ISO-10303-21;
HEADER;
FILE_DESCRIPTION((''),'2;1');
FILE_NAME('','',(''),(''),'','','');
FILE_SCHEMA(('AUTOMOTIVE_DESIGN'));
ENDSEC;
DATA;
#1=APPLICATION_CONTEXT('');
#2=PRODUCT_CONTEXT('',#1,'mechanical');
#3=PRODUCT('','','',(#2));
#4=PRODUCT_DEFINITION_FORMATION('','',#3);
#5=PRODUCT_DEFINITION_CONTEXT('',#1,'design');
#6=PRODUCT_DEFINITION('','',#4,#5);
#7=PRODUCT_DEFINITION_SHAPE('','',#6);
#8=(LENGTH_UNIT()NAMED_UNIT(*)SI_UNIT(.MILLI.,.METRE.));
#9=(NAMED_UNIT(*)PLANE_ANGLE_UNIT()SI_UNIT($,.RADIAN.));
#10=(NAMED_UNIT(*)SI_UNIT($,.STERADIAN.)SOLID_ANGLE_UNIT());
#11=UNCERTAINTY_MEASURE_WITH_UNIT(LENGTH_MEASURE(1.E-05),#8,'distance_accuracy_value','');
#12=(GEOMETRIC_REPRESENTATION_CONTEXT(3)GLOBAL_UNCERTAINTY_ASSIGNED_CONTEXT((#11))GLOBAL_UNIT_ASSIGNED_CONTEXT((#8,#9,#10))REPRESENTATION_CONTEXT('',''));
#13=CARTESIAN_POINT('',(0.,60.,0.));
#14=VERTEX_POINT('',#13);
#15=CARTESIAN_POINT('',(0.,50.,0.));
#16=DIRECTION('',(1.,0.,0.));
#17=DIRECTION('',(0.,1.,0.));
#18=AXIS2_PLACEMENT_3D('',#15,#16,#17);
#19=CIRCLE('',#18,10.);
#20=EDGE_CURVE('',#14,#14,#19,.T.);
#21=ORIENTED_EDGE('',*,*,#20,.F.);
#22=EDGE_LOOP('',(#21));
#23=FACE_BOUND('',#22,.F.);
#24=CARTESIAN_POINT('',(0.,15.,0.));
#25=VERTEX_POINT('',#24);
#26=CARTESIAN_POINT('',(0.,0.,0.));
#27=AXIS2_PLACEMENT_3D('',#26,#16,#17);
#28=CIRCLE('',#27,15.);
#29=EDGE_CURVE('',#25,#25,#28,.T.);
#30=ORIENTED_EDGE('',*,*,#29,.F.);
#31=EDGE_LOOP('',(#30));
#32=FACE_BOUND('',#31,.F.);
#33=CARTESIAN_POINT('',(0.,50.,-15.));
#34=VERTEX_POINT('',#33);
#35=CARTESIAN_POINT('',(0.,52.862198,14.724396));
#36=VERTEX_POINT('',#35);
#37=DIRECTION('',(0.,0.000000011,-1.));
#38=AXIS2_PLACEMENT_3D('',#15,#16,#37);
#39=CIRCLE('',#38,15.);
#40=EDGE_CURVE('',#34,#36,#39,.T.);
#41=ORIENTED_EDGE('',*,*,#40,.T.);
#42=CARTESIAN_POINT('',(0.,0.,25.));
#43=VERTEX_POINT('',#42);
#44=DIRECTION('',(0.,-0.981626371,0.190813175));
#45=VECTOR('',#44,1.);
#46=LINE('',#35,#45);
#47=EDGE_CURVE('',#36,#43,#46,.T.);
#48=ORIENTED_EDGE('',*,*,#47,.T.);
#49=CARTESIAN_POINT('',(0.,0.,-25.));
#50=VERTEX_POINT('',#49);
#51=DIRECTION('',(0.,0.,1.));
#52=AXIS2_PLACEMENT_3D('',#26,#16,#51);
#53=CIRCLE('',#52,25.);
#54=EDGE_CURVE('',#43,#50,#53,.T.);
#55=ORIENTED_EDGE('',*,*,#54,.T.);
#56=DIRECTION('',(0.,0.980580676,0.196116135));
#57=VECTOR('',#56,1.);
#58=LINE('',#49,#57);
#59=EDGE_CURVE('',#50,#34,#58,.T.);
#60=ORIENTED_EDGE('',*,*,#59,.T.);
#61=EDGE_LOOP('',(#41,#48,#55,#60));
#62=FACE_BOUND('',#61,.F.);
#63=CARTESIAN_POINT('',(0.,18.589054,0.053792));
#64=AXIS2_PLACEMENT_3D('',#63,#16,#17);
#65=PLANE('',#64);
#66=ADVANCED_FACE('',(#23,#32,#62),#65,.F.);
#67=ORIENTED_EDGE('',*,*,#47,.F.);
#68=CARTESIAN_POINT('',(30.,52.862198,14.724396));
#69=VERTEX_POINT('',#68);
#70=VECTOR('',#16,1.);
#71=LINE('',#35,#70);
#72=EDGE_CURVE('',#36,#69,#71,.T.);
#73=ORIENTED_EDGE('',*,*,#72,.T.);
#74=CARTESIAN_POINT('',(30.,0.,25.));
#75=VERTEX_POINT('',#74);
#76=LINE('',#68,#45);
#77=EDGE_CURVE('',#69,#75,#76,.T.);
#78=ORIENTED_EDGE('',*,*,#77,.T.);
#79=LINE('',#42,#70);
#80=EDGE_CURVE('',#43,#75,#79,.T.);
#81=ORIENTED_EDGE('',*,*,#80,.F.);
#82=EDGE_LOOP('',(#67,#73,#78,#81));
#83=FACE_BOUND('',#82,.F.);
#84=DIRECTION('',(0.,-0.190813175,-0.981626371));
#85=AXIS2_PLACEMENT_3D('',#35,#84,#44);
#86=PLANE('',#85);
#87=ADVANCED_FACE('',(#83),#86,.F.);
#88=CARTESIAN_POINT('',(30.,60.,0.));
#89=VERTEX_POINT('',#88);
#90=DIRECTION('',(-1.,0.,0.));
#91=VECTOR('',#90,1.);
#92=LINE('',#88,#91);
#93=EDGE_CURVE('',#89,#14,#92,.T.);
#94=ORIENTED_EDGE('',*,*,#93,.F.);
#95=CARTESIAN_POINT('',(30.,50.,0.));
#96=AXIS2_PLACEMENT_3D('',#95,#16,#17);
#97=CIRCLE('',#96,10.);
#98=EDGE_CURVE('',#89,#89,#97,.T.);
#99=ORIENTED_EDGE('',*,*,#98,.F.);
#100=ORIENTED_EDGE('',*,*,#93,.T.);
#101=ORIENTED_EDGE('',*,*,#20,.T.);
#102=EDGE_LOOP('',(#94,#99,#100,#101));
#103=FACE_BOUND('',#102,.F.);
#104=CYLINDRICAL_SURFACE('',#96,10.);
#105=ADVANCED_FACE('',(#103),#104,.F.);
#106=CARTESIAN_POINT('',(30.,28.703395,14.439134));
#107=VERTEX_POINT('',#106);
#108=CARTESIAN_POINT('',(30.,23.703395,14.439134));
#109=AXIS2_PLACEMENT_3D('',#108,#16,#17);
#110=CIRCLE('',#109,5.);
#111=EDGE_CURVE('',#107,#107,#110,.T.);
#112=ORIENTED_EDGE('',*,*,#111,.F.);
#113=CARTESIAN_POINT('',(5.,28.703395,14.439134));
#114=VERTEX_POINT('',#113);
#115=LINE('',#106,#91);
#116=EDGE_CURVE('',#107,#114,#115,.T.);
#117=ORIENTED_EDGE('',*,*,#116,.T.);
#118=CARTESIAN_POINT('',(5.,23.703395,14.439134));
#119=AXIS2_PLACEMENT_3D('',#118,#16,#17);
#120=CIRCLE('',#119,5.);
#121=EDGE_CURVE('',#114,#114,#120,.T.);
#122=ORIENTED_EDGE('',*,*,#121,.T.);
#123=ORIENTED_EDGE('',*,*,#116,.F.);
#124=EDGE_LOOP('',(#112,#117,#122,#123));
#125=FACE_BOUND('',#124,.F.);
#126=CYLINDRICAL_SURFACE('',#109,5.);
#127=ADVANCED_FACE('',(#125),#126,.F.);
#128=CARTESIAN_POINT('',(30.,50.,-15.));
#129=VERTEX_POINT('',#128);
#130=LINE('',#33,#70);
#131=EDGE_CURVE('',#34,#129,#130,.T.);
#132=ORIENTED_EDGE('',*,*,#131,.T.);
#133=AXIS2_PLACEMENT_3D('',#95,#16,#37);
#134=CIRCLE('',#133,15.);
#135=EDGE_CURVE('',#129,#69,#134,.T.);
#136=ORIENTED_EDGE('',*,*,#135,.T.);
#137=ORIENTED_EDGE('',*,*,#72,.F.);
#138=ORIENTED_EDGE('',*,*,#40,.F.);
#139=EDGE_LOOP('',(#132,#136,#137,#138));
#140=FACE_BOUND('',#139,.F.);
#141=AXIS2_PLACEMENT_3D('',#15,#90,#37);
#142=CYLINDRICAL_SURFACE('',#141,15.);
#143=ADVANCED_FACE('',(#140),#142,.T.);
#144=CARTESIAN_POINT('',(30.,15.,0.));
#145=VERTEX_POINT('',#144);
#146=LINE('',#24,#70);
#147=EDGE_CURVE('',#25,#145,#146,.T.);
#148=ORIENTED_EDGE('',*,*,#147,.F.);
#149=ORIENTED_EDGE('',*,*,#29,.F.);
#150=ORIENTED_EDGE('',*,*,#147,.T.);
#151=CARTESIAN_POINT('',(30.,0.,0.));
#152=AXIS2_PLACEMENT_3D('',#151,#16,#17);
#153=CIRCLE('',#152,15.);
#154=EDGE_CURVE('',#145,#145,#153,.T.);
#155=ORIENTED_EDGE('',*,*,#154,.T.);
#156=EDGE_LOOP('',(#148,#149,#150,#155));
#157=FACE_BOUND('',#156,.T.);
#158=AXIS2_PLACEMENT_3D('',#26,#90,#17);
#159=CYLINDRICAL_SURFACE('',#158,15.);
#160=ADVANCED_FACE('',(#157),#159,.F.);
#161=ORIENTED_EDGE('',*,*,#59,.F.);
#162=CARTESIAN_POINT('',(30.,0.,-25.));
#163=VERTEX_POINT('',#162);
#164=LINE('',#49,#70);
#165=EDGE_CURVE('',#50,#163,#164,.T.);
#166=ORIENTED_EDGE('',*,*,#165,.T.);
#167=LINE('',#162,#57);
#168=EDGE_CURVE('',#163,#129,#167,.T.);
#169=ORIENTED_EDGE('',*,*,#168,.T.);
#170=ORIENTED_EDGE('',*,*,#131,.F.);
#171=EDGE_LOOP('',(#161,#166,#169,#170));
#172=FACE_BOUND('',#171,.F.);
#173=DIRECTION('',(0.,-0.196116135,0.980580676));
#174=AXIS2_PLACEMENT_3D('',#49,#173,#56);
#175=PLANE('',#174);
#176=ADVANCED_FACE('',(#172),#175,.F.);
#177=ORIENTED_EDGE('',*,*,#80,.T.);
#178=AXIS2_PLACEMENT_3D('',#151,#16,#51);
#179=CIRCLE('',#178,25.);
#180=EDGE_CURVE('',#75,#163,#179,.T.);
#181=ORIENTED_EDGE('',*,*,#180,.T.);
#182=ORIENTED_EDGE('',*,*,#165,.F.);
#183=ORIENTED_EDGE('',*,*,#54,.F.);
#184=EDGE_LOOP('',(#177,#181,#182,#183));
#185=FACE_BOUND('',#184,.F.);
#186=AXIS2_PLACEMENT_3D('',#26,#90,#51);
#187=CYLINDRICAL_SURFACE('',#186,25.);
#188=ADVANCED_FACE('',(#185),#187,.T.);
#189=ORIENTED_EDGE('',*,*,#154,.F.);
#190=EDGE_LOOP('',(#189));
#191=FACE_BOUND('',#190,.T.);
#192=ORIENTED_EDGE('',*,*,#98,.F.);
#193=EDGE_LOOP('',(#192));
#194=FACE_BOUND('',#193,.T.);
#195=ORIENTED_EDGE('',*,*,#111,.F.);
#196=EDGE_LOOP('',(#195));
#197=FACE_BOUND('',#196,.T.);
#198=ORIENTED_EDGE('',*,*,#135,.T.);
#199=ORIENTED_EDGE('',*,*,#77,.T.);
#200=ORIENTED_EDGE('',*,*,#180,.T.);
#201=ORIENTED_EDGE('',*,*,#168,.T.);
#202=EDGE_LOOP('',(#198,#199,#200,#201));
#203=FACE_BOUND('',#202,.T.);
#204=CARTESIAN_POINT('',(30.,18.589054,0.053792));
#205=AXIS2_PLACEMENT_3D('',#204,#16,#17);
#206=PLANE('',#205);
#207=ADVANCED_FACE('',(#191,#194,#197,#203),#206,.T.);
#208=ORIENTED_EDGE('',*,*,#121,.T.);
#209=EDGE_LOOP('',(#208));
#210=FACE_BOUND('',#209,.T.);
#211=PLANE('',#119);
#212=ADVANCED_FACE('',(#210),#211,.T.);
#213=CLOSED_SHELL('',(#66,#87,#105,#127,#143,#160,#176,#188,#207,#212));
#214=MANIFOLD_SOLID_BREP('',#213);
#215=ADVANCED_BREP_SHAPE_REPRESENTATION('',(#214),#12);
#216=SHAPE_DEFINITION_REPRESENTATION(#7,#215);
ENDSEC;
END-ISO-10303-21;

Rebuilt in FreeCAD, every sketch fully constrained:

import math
import FreeCAD as App
import Part
import Sketcher
from FreeCAD import Vector

doc = App.newDocument("Part")
body = doc.addObject("PartDesign::Body", "Body")

sketch1 = body.newObject("Sketcher::SketchObject", "Sketch")
sketch1.AttachmentSupport = (doc.getObject("YZ_Plane"), [""])
sketch1.MapMode = "FlatFace"
sketch1.addGeometry([
    Part.LineSegment(Vector(52.862198, 14.724396, 0), Vector(0, 25, 0)),
    Part.ArcOfCircle(Part.Circle(Vector(0, 0, 0), Vector(0, 0, 1), 25), math.radians(90), math.radians(270)),
    Part.LineSegment(Vector(0, -25, 0), Vector(50, -15, 0)),
    Part.ArcOfCircle(Part.Circle(Vector(50, 0, 0), Vector(0, 0, 1), 15), math.radians(-89.999999), math.radians(78.999754)),
    Part.Circle(Vector(0, 0, 0), Vector(0, 0, 1), 15),
], False)
sketch1.addConstraint([
    Sketcher.Constraint("Coincident", 0, 2, 1, 1),
    Sketcher.Constraint("Coincident", 1, 2, 2, 1),
    Sketcher.Constraint("Coincident", 2, 2, 3, 1),
    Sketcher.Constraint("Tangent", 3, 2, 0, 1),
    Sketcher.Constraint("Coincident", 1, 3, -1, 1),
    Sketcher.Constraint("Coincident", 4, 3, -1, 1),
    Sketcher.Constraint("Equal", 3, 4),
    Sketcher.Constraint("PointOnObject", 3, 3, -1),
    Sketcher.Constraint("PointOnObject", 0, 2, -2),
    Sketcher.Constraint("PointOnObject", 1, 2, -2),
    Sketcher.Constraint("Vertical", 3, 3, 2, 2),
    Sketcher.Constraint("Diameter", 4, 30.0),
    Sketcher.Constraint("Radius", 1, 25.0),
    Sketcher.Constraint("DistanceX", -1, 1, 3, 3, 50.0),
])
pad1 = body.newObject("PartDesign::Pad", "Pad")
pad1.Profile = sketch1
pad1.Length = 30

sketch2 = body.newObject("Sketcher::SketchObject", "Sketch001")
sketch2.AttachmentSupport = (doc.getObject("YZ_Plane"), [""])
sketch2.MapMode = "FlatFace"
sketch2.AttachmentOffset = App.Placement(Vector(0, 0, 30), App.Rotation())
sketch2.addGeometry(Part.Circle(Vector(50, 0, 0), Vector(0, 0, 1), 10), False)
sketch2.addConstraint([
    Sketcher.Constraint("PointOnObject", 0, 3, -1),
    Sketcher.Constraint("Diameter", 0, 20.0),
    Sketcher.Constraint("DistanceX", -1, 1, 0, 3, 50.0),
])
pocket1 = body.newObject("PartDesign::Pocket", "Pocket")
pocket1.Profile = sketch2
pocket1.Type = "ThroughAll"

sketch3 = body.newObject("Sketcher::SketchObject", "Sketch002")
sketch3.AttachmentSupport = (doc.getObject("YZ_Plane"), [""])
sketch3.MapMode = "FlatFace"
sketch3.AttachmentOffset = App.Placement(Vector(0, 0, 30), App.Rotation())
sketch3.addGeometry(Part.Circle(Vector(23.703395, 14.439134, 0), Vector(0, 0, 1), 5), False)
sketch3.addConstraint([
    Sketcher.Constraint("Diameter", 0, 10.0),
    Sketcher.Constraint("DistanceX", -1, 1, 0, 3, 23.703395),
    Sketcher.Constraint("DistanceY", -1, 1, 0, 3, 14.439134),
])
pocket2 = body.newObject("PartDesign::Pocket", "Pocket001")
pocket2.Profile = sketch3
pocket2.Length = 25

doc.recompute()
